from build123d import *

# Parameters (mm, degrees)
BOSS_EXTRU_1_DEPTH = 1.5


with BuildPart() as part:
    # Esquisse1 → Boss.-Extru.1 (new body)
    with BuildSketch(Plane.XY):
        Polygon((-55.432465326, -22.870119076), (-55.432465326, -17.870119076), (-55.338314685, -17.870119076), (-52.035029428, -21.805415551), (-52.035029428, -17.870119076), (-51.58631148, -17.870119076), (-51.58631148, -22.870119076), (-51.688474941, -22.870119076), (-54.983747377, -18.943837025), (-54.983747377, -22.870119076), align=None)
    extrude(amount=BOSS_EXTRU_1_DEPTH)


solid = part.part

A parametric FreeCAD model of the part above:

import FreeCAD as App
import Part
import Sketcher
from FreeCAD import Vector

doc = App.newDocument("Part")
body = doc.addObject("PartDesign::Body", "Body")

# Sketch on XY plane
sketch1 = body.newObject("Sketcher::SketchObject", "Sketch")
sketch1.AttachmentSupport = (doc.getObject("XY_Plane"), [""])
sketch1.MapMode = "FlatFace"
sketch1.addGeometry([
    Part.LineSegment(Vector(-55.43, -17.87, 0), Vector(-55.43, -22.87, 0)),  # 0
    Part.LineSegment(Vector(-55.43, -22.87, 0), Vector(-54.98, -22.87, 0)),  # 1
    Part.LineSegment(Vector(-54.98, -22.87, 0), Vector(-54.98, -18.94, 0)),  # 2
    Part.LineSegment(Vector(-54.98, -18.94, 0), Vector(-51.69, -22.87, 0)),  # 3
    Part.LineSegment(Vector(-51.69, -22.87, 0), Vector(-51.59, -22.87, 0)),  # 4
    Part.LineSegment(Vector(-51.59, -22.87, 0), Vector(-51.59, -17.87, 0)),  # 5
    Part.LineSegment(Vector(-51.59, -17.87, 0), Vector(-52.04, -17.87, 0)),  # 6
    Part.LineSegment(Vector(-52.04, -17.87, 0), Vector(-52.04, -21.81, 0)),  # 7
    Part.LineSegment(Vector(-52.04, -21.81, 0), Vector(-55.34, -17.87, 0)),  # 8
    Part.LineSegment(Vector(-55.34, -17.87, 0), Vector(-55.43, -17.87, 0)),  # 9
], False)
sketch1.addConstraint([
    Sketcher.Constraint("Coincident", 0, 2, 1, 1),
    Sketcher.Constraint("Coincident", 1, 2, 2, 1),
    Sketcher.Constraint("Coincident", 2, 2, 3, 1),
    Sketcher.Constraint("Coincident", 3, 2, 4, 1),
    Sketcher.Constraint("Coincident", 4, 2, 5, 1),
    Sketcher.Constraint("Coincident", 5, 2, 6, 1),
    Sketcher.Constraint("Coincident", 6, 2, 7, 1),
    Sketcher.Constraint("Coincident", 7, 2, 8, 1),
    Sketcher.Constraint("Coincident", 8, 2, 9, 1),
    Sketcher.Constraint("Coincident", 9, 2, 0, 1),
    Sketcher.Constraint("Vertical", 0),
    Sketcher.Constraint("Horizontal", 1),
    Sketcher.Constraint("Vertical", 2),
    Sketcher.Constraint("Horizontal", 4),
    Sketcher.Constraint("Vertical", 5),
    Sketcher.Constraint("Horizontal", 6),
    Sketcher.Constraint("Vertical", 7),
    Sketcher.Constraint("Horizontal", 9),
    Sketcher.Constraint("Horizontal", 1, 2, 3, 2),
    Sketcher.Constraint("Horizontal", 6, 2, 8, 2),
    Sketcher.Constraint("Equal", 1, 6),
    Sketcher.Constraint("DistanceY", 0, 2, 0, 1, 5.0),
    Sketcher.Constraint("DistanceX", 9, 2, 9, 1, 0.094151),
    Sketcher.Constraint("DistanceX", 1, 1, 1, 2, 0.448718),
    Sketcher.Constraint("DistanceX", 4, 1, 4, 2, 0.102163),
    Sketcher.Constraint("DistanceY", 2, 1, 2, 2, 3.926282),
    Sketcher.Constraint("DistanceY", 7, 2, 7, 1, 3.935296),
    Sketcher.Constraint("DistanceY", 0, 2, -1, 1, 22.870119),
    Sketcher.Constraint("DistanceX", 4, 2, -1, 1, 51.586311),
    Sketcher.Constraint("DistanceX", 0, 2, 3, 2, 3.74399),
])
pad1 = body.newObject("PartDesign::Pad", "Pad")
pad1.Profile = sketch1
pad1.Length = 1.5

doc.recompute()
